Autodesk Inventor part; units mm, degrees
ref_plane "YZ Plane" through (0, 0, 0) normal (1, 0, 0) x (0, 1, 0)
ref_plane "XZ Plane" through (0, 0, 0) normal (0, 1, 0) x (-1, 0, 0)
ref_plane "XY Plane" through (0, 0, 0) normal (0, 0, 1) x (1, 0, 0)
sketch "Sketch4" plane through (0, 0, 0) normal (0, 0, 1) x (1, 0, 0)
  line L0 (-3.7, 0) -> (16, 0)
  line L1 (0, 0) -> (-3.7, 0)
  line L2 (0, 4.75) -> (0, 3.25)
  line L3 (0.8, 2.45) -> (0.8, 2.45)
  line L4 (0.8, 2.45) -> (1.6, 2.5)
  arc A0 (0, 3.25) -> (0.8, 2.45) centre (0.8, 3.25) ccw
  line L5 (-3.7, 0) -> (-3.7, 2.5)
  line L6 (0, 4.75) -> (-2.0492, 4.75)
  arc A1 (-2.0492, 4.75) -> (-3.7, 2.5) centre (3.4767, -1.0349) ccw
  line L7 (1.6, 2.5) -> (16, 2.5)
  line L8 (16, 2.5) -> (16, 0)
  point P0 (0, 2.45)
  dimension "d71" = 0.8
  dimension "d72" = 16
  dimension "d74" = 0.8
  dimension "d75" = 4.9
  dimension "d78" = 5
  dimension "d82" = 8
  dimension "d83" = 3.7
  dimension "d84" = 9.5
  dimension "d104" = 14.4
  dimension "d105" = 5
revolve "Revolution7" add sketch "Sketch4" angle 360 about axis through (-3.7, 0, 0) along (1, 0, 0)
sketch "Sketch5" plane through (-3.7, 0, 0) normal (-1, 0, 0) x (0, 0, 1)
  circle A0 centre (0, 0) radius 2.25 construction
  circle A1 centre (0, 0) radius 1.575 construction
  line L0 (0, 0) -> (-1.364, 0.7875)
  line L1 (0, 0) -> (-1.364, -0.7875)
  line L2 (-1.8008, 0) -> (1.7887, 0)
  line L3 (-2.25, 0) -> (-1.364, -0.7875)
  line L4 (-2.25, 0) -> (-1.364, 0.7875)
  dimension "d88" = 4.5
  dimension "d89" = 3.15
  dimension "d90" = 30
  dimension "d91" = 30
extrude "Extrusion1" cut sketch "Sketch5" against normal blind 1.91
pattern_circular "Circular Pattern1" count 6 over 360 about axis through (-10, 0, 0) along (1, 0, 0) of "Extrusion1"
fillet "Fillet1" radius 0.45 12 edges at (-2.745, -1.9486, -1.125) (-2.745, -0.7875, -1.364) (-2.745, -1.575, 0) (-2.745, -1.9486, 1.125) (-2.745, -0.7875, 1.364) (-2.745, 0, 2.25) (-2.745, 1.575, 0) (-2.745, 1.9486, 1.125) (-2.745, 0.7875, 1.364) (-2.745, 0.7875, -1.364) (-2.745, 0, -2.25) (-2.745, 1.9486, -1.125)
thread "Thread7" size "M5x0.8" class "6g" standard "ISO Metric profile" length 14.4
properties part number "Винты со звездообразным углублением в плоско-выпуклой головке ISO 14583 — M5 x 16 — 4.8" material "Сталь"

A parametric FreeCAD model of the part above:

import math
import FreeCAD as App
import Part
import Sketcher
from FreeCAD import Vector
Q = App.Units.Quantity


def edges_at(feature, points):
    """Names of the edges that pass closest to the given points."""
    edges = feature.Shape.Edges
    near = lambda p: min(range(len(edges)), key=lambda i: edges[i].distToShape(Part.Vertex(*p))[0])
    return sorted({f"Edge{near(p) + 1}" for p in points})


def add_polygon(sketch, points):
    """Adds a closed chain of lines whose ends are joined by coincident constraints."""
    first, n = sketch.GeometryCount, len(points)
    for a, b in zip(points, points[1:] + points[:1]):
        sketch.addGeometry(Part.LineSegment(App.Vector(*a, 0), App.Vector(*b, 0)), False)
    for i in range(n):
        sketch.addConstraint(Sketcher.Constraint("Coincident", first + i, 2, first + (i + 1) % n, 1))

doc = App.newDocument("Part")
body = doc.addObject("PartDesign::Body", "Body")

# Sketch on XY plane
sketch1 = body.newObject("Sketcher::SketchObject", "Sketch")
sketch1.AttachmentSupport = (doc.getObject("XY_Plane"), [""])
sketch1.MapMode = "FlatFace"
sketch1.addGeometry(Part.LineSegment(Vector(-3.7, 2.5, 0), Vector(-3.7, 0, 0)), False)
sketch1.addGeometry(Part.LineSegment(Vector(-3.7, 0, 0), Vector(16, 0, 0)), False)
sketch1.addGeometry(Part.LineSegment(Vector(16, 0, 0), Vector(16, 2.5, 0)), False)
sketch1.addGeometry(Part.LineSegment(Vector(16, 2.5, 0), Vector(1.6, 2.5, 0)), False)
sketch1.addGeometry(Part.LineSegment(Vector(1.6, 2.5, 0), Vector(0.8, 2.5, 0)), False)
sketch1.addGeometry(Part.ArcOfCircle(Part.Circle(Vector(0.8, 3.2, 0), Vector(0, 0, 1), 0.8), math.radians(180), math.radians(270)), False)
sketch1.addGeometry(Part.LineSegment(Vector(0, 3.2, 0), Vector(0, 4.8, 0)), False)
sketch1.addGeometry(Part.LineSegment(Vector(0, 4.8, 0), Vector(-2, 4.8, 0)), False)
sketch1.addGeometry(Part.ArcOfCircle(Part.Circle(Vector(3.5, -1, 0), Vector(0, 0, 1), 8), math.radians(134), math.radians(154)), False)
sketch1.addConstraint(Sketcher.Constraint("Coincident", 0, 2, 1, 1))
sketch1.addConstraint(Sketcher.Constraint("Coincident", 1, 2, 2, 1))
sketch1.addConstraint(Sketcher.Constraint("Coincident", 2, 2, 3, 1))
sketch1.addConstraint(Sketcher.Constraint("Coincident", 3, 2, 4, 1))
sketch1.addConstraint(Sketcher.Constraint("Coincident", 4, 2, 5, 2))
sketch1.addConstraint(Sketcher.Constraint("Tangent", 5, 1, 6, 1))
sketch1.addConstraint(Sketcher.Constraint("Coincident", 6, 2, 7, 1))
sketch1.addConstraint(Sketcher.Constraint("Coincident", 7, 2, 8, 1))
sketch1.addConstraint(Sketcher.Constraint("Coincident", 8, 2, 0, 1))
sketch1.addConstraint(Sketcher.Constraint("Vertical", 0))
sketch1.addConstraint(Sketcher.Constraint("Horizontal", 1))
sketch1.addConstraint(Sketcher.Constraint("Vertical", 2))
sketch1.addConstraint(Sketcher.Constraint("Horizontal", 3))
sketch1.addConstraint(Sketcher.Constraint("Vertical", 6))
sketch1.addConstraint(Sketcher.Constraint("Horizontal", 7))
sketch1.addConstraint(Sketcher.Constraint("PointOnObject", 0, 2, -1))
sketch1.addConstraint(Sketcher.Constraint("PointOnObject", 5, 1, -2))
sketch1.addConstraint(Sketcher.Constraint("Horizontal", 3, 2, 8, 2))
sketch1.addConstraint(Sketcher.Constraint("Vertical", 5, 3, 4, 2))
sketch1.addConstraint(Sketcher.Constraint("Radius", 8, Q("8 mm")))
sketch1.addConstraint(Sketcher.Constraint("Radius", 5, Q("0.8 mm")))
sketch1.addConstraint(Sketcher.Constraint("DistanceX", 3, 2, 3, 1, Q("14.4 mm")))
sketch1.addConstraint(Sketcher.Constraint("DistanceX", -1, 1, 1, 2, Q("16 mm")))
sketch1.addConstraint(Sketcher.Constraint("DistanceX", 0, 2, -1, 1, Q("3.7 mm")))
sketch1.addConstraint(Sketcher.Constraint("DistanceY", 0, 2, 0, 1, Q("2.5 mm")))
sketch1.addConstraint(Sketcher.Constraint("DistanceY", 6, 1, 6, 2, Q("1.5 mm")))
sketch1.addConstraint(Sketcher.Constraint("DistanceY", -1, 1, 5, 3, Q("3.25 mm")))
sketch1.addConstraint(Sketcher.Constraint("DistanceX", 7, 2, 7, 1, Q("2.0492 mm")))
revolution = body.newObject("PartDesign::Revolution", "Revolution")
revolution.Profile = sketch1
revolution.ReferenceAxis = (sketch1, ["H_Axis"])
revolution.Angle = 360

# Sketch on YZ plane
sketch2 = body.newObject("Sketcher::SketchObject", "Sketch001")
sketch2.AttachmentSupport = (doc.getObject("YZ_Plane"), [""])
sketch2.MapMode = "FlatFace"
sketch2.AttachmentOffset = App.Placement(Vector(0, 0, -3.7), App.Rotation())
add_polygon(sketch2, [(-0.8, -1.4), (0, 0), (0.8, -1.4), (0, -2.2)])  # lines 0-3
sketch2.addConstraint(Sketcher.Constraint("Coincident", 0, 2, -1, 1))
sketch2.addConstraint(Sketcher.Constraint("Symmetric", 1, 2, 3, 2, -2))
sketch2.addConstraint(Sketcher.Constraint("PointOnObject", 2, 2, -2))
sketch2.addConstraint(Sketcher.Constraint("Angle", 0, Q("60.0002 deg")))
sketch2.addConstraint(Sketcher.Constraint("DistanceY", 2, 2, -1, 1, Q("2.25 mm")))
sketch2.addConstraint(Sketcher.Constraint("Distance", 0, Q("1.575 mm")))
pocket1 = body.newObject("PartDesign::Pocket", "Pocket")
pocket1.Profile = sketch2
pocket1.Length = 1.91
pocket1.Reversed = True
doc.recompute()

polarpattern = body.newObject("PartDesign::PolarPattern", "PolarPattern")
polarpattern.Originals = [pocket1]
polarpattern.Axis = (doc.getObject("X_Axis"), [""])
polarpattern.Angle = 360
polarpattern.Occurrences = 6
body.Tip = polarpattern
doc.recompute()

fillet = body.newObject("PartDesign::Fillet", "Fillet")
fillet.Base = (polarpattern, edges_at(polarpattern, [
    (-2.745, -1.949, -1.125),
    (-2.745, -0.787, -1.364),
    (-2.745, -1.575, 0),
    (-2.745, -1.949, 1.125),
    (-2.745, -0.787, 1.364),
    (-2.745, 0, 2.25),
    (-2.745, 1.575, 0),
    (-2.745, 1.949, 1.125),
    (-2.745, 0.787, 1.364),
    (-2.745, 0.787, -1.364),
    (-2.745, 0, -2.25),
    (-2.745, 1.949, -1.125),
]))
fillet.Radius = 0.45

doc.recompute()
